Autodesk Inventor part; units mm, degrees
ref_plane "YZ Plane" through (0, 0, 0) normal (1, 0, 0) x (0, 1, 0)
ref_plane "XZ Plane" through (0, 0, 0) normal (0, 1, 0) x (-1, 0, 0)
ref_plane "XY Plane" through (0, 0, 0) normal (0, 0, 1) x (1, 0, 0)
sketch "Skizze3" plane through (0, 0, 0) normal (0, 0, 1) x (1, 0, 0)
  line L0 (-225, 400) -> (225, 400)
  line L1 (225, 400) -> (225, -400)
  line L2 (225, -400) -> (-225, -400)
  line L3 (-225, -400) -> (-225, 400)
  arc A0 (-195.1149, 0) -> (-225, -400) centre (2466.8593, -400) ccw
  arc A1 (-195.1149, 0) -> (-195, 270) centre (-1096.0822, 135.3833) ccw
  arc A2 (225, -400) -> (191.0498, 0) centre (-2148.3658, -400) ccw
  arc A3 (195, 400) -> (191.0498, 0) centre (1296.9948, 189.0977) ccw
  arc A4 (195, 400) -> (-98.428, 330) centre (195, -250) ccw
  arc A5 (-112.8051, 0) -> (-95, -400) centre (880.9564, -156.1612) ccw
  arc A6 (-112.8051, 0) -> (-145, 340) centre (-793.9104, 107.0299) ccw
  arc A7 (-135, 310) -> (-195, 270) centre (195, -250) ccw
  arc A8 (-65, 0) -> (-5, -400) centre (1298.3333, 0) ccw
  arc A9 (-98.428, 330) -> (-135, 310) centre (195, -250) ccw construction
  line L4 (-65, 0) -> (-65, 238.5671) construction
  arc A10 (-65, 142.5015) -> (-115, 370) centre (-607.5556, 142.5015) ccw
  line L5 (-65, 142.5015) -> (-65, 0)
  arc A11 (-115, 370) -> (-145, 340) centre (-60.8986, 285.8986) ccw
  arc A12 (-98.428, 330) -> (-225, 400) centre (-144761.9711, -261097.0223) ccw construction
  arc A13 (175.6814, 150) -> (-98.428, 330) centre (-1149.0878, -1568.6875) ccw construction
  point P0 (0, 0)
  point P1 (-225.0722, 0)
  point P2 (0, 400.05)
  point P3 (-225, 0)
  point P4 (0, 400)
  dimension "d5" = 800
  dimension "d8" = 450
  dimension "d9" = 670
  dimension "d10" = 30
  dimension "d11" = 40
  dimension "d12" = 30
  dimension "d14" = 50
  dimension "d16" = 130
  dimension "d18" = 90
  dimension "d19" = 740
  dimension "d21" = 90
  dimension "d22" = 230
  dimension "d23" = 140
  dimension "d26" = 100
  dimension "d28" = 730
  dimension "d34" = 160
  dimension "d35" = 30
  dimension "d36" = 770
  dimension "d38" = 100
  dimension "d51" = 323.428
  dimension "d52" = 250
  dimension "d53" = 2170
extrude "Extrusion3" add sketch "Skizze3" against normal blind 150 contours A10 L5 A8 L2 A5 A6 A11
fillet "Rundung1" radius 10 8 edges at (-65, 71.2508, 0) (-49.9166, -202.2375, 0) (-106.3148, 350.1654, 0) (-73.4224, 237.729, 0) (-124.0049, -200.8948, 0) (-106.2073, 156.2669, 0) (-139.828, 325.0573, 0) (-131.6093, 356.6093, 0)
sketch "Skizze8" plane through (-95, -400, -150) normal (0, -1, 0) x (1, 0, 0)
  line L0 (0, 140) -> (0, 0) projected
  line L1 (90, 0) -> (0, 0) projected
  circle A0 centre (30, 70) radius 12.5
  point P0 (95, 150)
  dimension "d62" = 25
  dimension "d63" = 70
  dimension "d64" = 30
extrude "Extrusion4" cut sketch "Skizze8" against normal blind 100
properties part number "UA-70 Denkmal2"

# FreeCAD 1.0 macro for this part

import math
import FreeCAD as App
import Part
import Sketcher
from FreeCAD import Vector


def edges_at(feature, points):
    """Names of the edges that pass closest to the given points."""
    edges = feature.Shape.Edges
    near = lambda p: min(range(len(edges)), key=lambda i: edges[i].distToShape(Part.Vertex(*p))[0])
    return sorted({f"Edge{near(p) + 1}" for p in points})

doc = App.newDocument("Part")
body = doc.addObject("PartDesign::Body", "Body")

# Sketch on XY plane
sketch1 = doc.addObject("Sketcher::SketchObject", "Sketch")
body.addObject(sketch1)
sketch1.AttachmentSupport = (doc.XY_Plane, [""])
sketch1.MapMode = "FlatFace"
sketch1.addGeometry(Part.ArcOfCircle(Part.Circle(Vector(-608, 143, 0), Vector(0, 0, 1), 543), math.radians(0), math.radians(25)), False)
sketch1.addGeometry(Part.ArcOfCircle(Part.Circle(Vector(-61, 286, 0), Vector(0, 0, 1), 100), math.radians(123), math.radians(147)), False)
sketch1.addGeometry(Part.ArcOfCircle(Part.Circle(Vector(-794, 107, 0), Vector(0, 0, 1), 689), math.radians(-9), math.radians(20)), False)
sketch1.addGeometry(Part.ArcOfCircle(Part.Circle(Vector(881, -156, 0), Vector(0, 0, 1), 1006), math.radians(171), math.radians(194)), False)
sketch1.addGeometry(Part.LineSegment(Vector(-95, -400, 0), Vector(-5, -400, 0)), False)
sketch1.addGeometry(Part.ArcOfCircle(Part.Circle(Vector(1298, 0, 0), Vector(0, 0, 1), 1363), math.radians(180), math.radians(197.06)), False)
sketch1.addGeometry(Part.LineSegment(Vector(-65, 0, 0), Vector(-65, 143, 0)), False)
sketch1.addConstraint(Sketcher.Constraint("Coincident", 0, 2, 1, 1))
sketch1.addConstraint(Sketcher.Constraint("Coincident", 1, 2, 2, 2))
sketch1.addConstraint(Sketcher.Constraint("Tangent", 2, 1, 3, 1))
sketch1.addConstraint(Sketcher.Constraint("Coincident", 3, 2, 4, 1))
sketch1.addConstraint(Sketcher.Constraint("Coincident", 4, 2, 5, 2))
sketch1.addConstraint(Sketcher.Constraint("Tangent", 5, 1, 6, 1))
sketch1.addConstraint(Sketcher.Constraint("Tangent", 6, 2, 0, 1))
sketch1.addConstraint(Sketcher.Constraint("Horizontal", 4))
sketch1.addConstraint(Sketcher.Constraint("Vertical", 6))
sketch1.addConstraint(Sketcher.Constraint("PointOnObject", 5, 3, -1))
sketch1.addConstraint(Sketcher.Constraint("Radius", 1, 100.0))
sketch1.addConstraint(Sketcher.Constraint("DistanceX", 4, 1, 4, 2, 90.0))
sketch1.addConstraint(Sketcher.Constraint("DistanceX", 1, 2, 0, 2, 30.0))
sketch1.addConstraint(Sketcher.Constraint("DistanceX", 1, 2, 3, 2, 50.0))
sketch1.addConstraint(Sketcher.Constraint("DistanceY", 4, 2, 1, 2, 740.0))
sketch1.addConstraint(Sketcher.Constraint("DistanceX", 1, 2, -1, 1, 145.0))
sketch1.addConstraint(Sketcher.Constraint("DistanceY", -1, 1, 1, 2, 340.0))
sketch1.addConstraint(Sketcher.Constraint("DistanceX", 5, 1, -1, 1, 65.0))
sketch1.addConstraint(Sketcher.Constraint("Radius", 0, 542.5556))
sketch1.addConstraint(Sketcher.Constraint("Radius", 2, 689.4634))
sketch1.addConstraint(Sketcher.Constraint("Radius", 3, 1005.9564))
sketch1.addConstraint(Sketcher.Constraint("DistanceY", -1, 1, 2, 3, 107.03))
sketch1.addConstraint(Sketcher.Constraint("DistanceY", 6, 1, 6, 2, 142.5015))
pad1 = doc.addObject("PartDesign::Pad", "Pad")
body.addObject(pad1)
pad1.Profile = sketch1
pad1.Length = 150
pad1.Reversed = True
doc.recompute()

fillet = doc.addObject("PartDesign::Fillet", "Fillet")
body.addObject(fillet)
fillet.Base = (pad1, edges_at(pad1, [
    (-65, 71.251, 0),
    (-49.917, -202.238, 0),
    (-106.315, 350.165, 0),
    (-73.422, 237.729, 0),
    (-124.005, -200.895, 0),
    (-106.207, 156.267, 0),
    (-139.828, 325.057, 0),
    (-131.609, 356.609, 0),
]))
fillet.Radius = 10

# Sketch on XZ plane
sketch2 = doc.addObject("Sketcher::SketchObject", "Sketch001")
body.addObject(sketch2)
sketch2.AttachmentSupport = (doc.XZ_Plane, [""])
sketch2.MapMode = "FlatFace"
sketch2.AttachmentOffset = App.Placement(Vector(0, 0, 400), App.Rotation())
sketch2.addGeometry(Part.Circle(Vector(-65, -80, 0), Vector(0, 0, 1), 12), False)
sketch2.addConstraint(Sketcher.Constraint("Diameter", 0, 25.0))
sketch2.addConstraint(Sketcher.Constraint("DistanceX", 0, 3, -1, 1, 65.0))
sketch2.addConstraint(Sketcher.Constraint("DistanceY", 0, 3, -1, 1, 80.0))
pocket1 = doc.addObject("PartDesign::Pocket", "Pocket")
body.addObject(pocket1)
pocket1.Profile = sketch2
pocket1.Length = 100

doc.recompute()
